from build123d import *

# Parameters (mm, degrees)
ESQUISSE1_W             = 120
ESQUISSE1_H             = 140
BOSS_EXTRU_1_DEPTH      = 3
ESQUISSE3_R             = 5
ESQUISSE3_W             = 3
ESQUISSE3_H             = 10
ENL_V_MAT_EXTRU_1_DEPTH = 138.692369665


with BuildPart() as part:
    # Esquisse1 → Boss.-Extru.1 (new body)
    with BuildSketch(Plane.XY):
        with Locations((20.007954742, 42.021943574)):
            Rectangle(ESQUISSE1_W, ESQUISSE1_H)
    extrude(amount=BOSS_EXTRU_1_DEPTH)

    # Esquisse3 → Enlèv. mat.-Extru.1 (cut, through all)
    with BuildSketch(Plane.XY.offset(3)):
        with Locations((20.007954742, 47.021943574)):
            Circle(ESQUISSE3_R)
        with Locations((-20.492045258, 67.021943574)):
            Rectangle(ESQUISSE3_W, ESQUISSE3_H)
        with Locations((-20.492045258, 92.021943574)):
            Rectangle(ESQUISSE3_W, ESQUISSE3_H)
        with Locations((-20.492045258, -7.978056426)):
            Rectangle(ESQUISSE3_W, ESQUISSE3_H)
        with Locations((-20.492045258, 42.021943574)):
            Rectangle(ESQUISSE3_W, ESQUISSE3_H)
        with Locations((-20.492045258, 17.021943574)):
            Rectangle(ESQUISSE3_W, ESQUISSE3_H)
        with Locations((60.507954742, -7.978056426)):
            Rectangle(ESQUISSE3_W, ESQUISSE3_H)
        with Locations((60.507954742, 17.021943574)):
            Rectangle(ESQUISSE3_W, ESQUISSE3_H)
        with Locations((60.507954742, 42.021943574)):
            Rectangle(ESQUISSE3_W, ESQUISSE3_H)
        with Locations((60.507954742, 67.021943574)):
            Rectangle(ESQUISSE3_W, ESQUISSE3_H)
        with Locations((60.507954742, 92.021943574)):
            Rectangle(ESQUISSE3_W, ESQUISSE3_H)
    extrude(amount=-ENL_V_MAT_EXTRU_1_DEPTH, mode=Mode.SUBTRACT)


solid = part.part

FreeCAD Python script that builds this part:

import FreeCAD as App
import Part
import Sketcher
Q = App.Units.Quantity

doc = App.newDocument("Part")
body = doc.addObject("PartDesign::Body", "Body")

sketch1 = doc.addObject("Sketcher::SketchObject", "Sketch")
body.addObject(sketch1)
sketch1.AttachmentSupport = (doc.XY_Plane, [""])
sketch1.MapMode = "FlatFace"
sketch1.addGeometry([
    Part.LineSegment(App.Vector(-40, 112, 0), App.Vector(-40, -28, 0)),
    Part.LineSegment(App.Vector(-40, -28, 0), App.Vector(80, -28, 0)),
    Part.LineSegment(App.Vector(80, -28, 0), App.Vector(80, 112, 0)),
    Part.LineSegment(App.Vector(80, 112, 0), App.Vector(-40, 112, 0)),
], False)
sketch1.addConstraint([
    Sketcher.Constraint("Coincident", 0, 2, 1, 1),
    Sketcher.Constraint("Coincident", 1, 2, 2, 1),
    Sketcher.Constraint("Coincident", 2, 2, 3, 1),
    Sketcher.Constraint("Coincident", 3, 2, 0, 1),
    Sketcher.Constraint("Vertical", 0),
    Sketcher.Constraint("Horizontal", 1),
    Sketcher.Constraint("Vertical", 2),
    Sketcher.Constraint("Horizontal", 3),
    Sketcher.Constraint("DistanceX", 1, 1, 1, 2, Q("120 mm")),
    Sketcher.Constraint("DistanceY", 0, 2, 0, 1, Q("140 mm")),
    Sketcher.Constraint("DistanceX", 0, 2, -1, 1, Q("39.992045 mm")),
    Sketcher.Constraint("DistanceY", 0, 2, -1, 1, Q("27.978056 mm")),
])
pad1 = doc.addObject("PartDesign::Pad", "Pad")
body.addObject(pad1)
pad1.Profile = sketch1
pad1.Length = 3

sketch2 = doc.addObject("Sketcher::SketchObject", "Sketch001")
body.addObject(sketch2)
sketch2.AttachmentSupport = (doc.XY_Plane, [""])
sketch2.MapMode = "FlatFace"
sketch2.AttachmentOffset = App.Placement(App.Vector(0, 0, 3), App.Rotation())
sketch2.addGeometry([
    Part.Circle(App.Vector(20, 47, 0), App.Vector(0, 0, 1), 5),
    Part.LineSegment(App.Vector(-22, 72, 0), App.Vector(-22, 62, 0)),
    Part.LineSegment(App.Vector(-22, 62, 0), App.Vector(-19, 62, 0)),
    Part.LineSegment(App.Vector(-19, 62, 0), App.Vector(-19, 72, 0)),
    Part.LineSegment(App.Vector(-19, 72, 0), App.Vector(-22, 72, 0)),
    Part.LineSegment(App.Vector(-22, 97, 0), App.Vector(-22, 87, 0)),
    Part.LineSegment(App.Vector(-22, 87, 0), App.Vector(-19, 87, 0)),
    Part.LineSegment(App.Vector(-19, 87, 0), App.Vector(-19, 97, 0)),
    Part.LineSegment(App.Vector(-19, 97, 0), App.Vector(-22, 97, 0)),
    Part.LineSegment(App.Vector(-22, -3, 0), App.Vector(-22, -13, 0)),
    Part.LineSegment(App.Vector(-22, -13, 0), App.Vector(-19, -13, 0)),
    Part.LineSegment(App.Vector(-19, -13, 0), App.Vector(-19, -3, 0)),
    Part.LineSegment(App.Vector(-19, -3, 0), App.Vector(-22, -3, 0)),
    Part.LineSegment(App.Vector(-22, 47, 0), App.Vector(-22, 37, 0)),
    Part.LineSegment(App.Vector(-22, 37, 0), App.Vector(-19, 37, 0)),
    Part.LineSegment(App.Vector(-19, 37, 0), App.Vector(-19, 47, 0)),
    Part.LineSegment(App.Vector(-19, 47, 0), App.Vector(-22, 47, 0)),
    Part.LineSegment(App.Vector(-22, 22, 0), App.Vector(-22, 12, 0)),
    Part.LineSegment(App.Vector(-22, 12, 0), App.Vector(-19, 12, 0)),
    Part.LineSegment(App.Vector(-19, 12, 0), App.Vector(-19, 22, 0)),
    Part.LineSegment(App.Vector(-19, 22, 0), App.Vector(-22, 22, 0)),
    Part.LineSegment(App.Vector(59, -3, 0), App.Vector(59, -13, 0)),
    Part.LineSegment(App.Vector(59, -13, 0), App.Vector(62, -13, 0)),
    Part.LineSegment(App.Vector(62, -13, 0), App.Vector(62, -3, 0)),
    Part.LineSegment(App.Vector(62, -3, 0), App.Vector(59, -3, 0)),
    Part.LineSegment(App.Vector(59, 22, 0), App.Vector(59, 12, 0)),
    Part.LineSegment(App.Vector(59, 12, 0), App.Vector(62, 12, 0)),
    Part.LineSegment(App.Vector(62, 12, 0), App.Vector(62, 22, 0)),
    Part.LineSegment(App.Vector(62, 22, 0), App.Vector(59, 22, 0)),
    Part.LineSegment(App.Vector(59, 47, 0), App.Vector(59, 37, 0)),
    Part.LineSegment(App.Vector(59, 37, 0), App.Vector(62, 37, 0)),
    Part.LineSegment(App.Vector(62, 37, 0), App.Vector(62, 47, 0)),
    Part.LineSegment(App.Vector(62, 47, 0), App.Vector(59, 47, 0)),
    Part.LineSegment(App.Vector(59, 72, 0), App.Vector(59, 62, 0)),
    Part.LineSegment(App.Vector(59, 62, 0), App.Vector(62, 62, 0)),
    Part.LineSegment(App.Vector(62, 62, 0), App.Vector(62, 72, 0)),
    Part.LineSegment(App.Vector(62, 72, 0), App.Vector(59, 72, 0)),
    Part.LineSegment(App.Vector(59, 97, 0), App.Vector(59, 87, 0)),
    Part.LineSegment(App.Vector(59, 87, 0), App.Vector(62, 87, 0)),
    Part.LineSegment(App.Vector(62, 87, 0), App.Vector(62, 97, 0)),
    Part.LineSegment(App.Vector(62, 97, 0), App.Vector(59, 97, 0)),
], False)
sketch2.addConstraint([
    Sketcher.Constraint("Coincident", 1, 2, 2, 1),
    Sketcher.Constraint("Coincident", 2, 2, 3, 1),
    Sketcher.Constraint("Coincident", 3, 2, 4, 1),
    Sketcher.Constraint("Coincident", 4, 2, 1, 1),
    Sketcher.Constraint("Coincident", 5, 2, 6, 1),
    Sketcher.Constraint("Coincident", 6, 2, 7, 1),
    Sketcher.Constraint("Coincident", 7, 2, 8, 1),
    Sketcher.Constraint("Coincident", 8, 2, 5, 1),
    Sketcher.Constraint("Coincident", 9, 2, 10, 1),
    Sketcher.Constraint("Coincident", 10, 2, 11, 1),
    Sketcher.Constraint("Coincident", 11, 2, 12, 1),
    Sketcher.Constraint("Coincident", 12, 2, 9, 1),
    Sketcher.Constraint("Coincident", 13, 2, 14, 1),
    Sketcher.Constraint("Coincident", 14, 2, 15, 1),
    Sketcher.Constraint("Coincident", 15, 2, 16, 1),
    Sketcher.Constraint("Coincident", 16, 2, 13, 1),
    Sketcher.Constraint("Coincident", 17, 2, 18, 1),
    Sketcher.Constraint("Coincident", 18, 2, 19, 1),
    Sketcher.Constraint("Coincident", 19, 2, 20, 1),
    Sketcher.Constraint("Coincident", 20, 2, 17, 1),
    Sketcher.Constraint("Coincident", 21, 2, 22, 1),
    Sketcher.Constraint("Coincident", 22, 2, 23, 1),
    Sketcher.Constraint("Coincident", 23, 2, 24, 1),
    Sketcher.Constraint("Coincident", 24, 2, 21, 1),
    Sketcher.Constraint("Coincident", 25, 2, 26, 1),
    Sketcher.Constraint("Coincident", 26, 2, 27, 1),
    Sketcher.Constraint("Coincident", 27, 2, 28, 1),
    Sketcher.Constraint("Coincident", 28, 2, 25, 1),
    Sketcher.Constraint("Coincident", 29, 2, 30, 1),
    Sketcher.Constraint("Coincident", 30, 2, 31, 1),
    Sketcher.Constraint("Coincident", 31, 2, 32, 1),
    Sketcher.Constraint("Coincident", 32, 2, 29, 1),
    Sketcher.Constraint("Coincident", 33, 2, 34, 1),
    Sketcher.Constraint("Coincident", 34, 2, 35, 1),
    Sketcher.Constraint("Coincident", 35, 2, 36, 1),
    Sketcher.Constraint("Coincident", 36, 2, 33, 1),
    Sketcher.Constraint("Coincident", 37, 2, 38, 1),
    Sketcher.Constraint("Coincident", 38, 2, 39, 1),
    Sketcher.Constraint("Coincident", 39, 2, 40, 1),
    Sketcher.Constraint("Coincident", 40, 2, 37, 1),
    Sketcher.Constraint("Vertical", 1),
    Sketcher.Constraint("Horizontal", 2),
    Sketcher.Constraint("Vertical", 3),
    Sketcher.Constraint("Horizontal", 4),
    Sketcher.Constraint("Vertical", 5),
    Sketcher.Constraint("Horizontal", 6),
    Sketcher.Constraint("Vertical", 7),
    Sketcher.Constraint("Horizontal", 8),
    Sketcher.Constraint("Vertical", 9),
    Sketcher.Constraint("Horizontal", 10),
    Sketcher.Constraint("Vertical", 11),
    Sketcher.Constraint("Horizontal", 12),
    Sketcher.Constraint("Vertical", 13),
    Sketcher.Constraint("Horizontal", 14),
    Sketcher.Constraint("Vertical", 15),
    Sketcher.Constraint("Horizontal", 16),
    Sketcher.Constraint("Vertical", 17),
    Sketcher.Constraint("Horizontal", 18),
    Sketcher.Constraint("Vertical", 19),
    Sketcher.Constraint("Horizontal", 20),
    Sketcher.Constraint("Vertical", 21),
    Sketcher.Constraint("Horizontal", 22),
    Sketcher.Constraint("Vertical", 23),
    Sketcher.Constraint("Horizontal", 24),
    Sketcher.Constraint("Vertical", 25),
    Sketcher.Constraint("Horizontal", 26),
    Sketcher.Constraint("Vertical", 27),
    Sketcher.Constraint("Horizontal", 28),
    Sketcher.Constraint("Vertical", 29),
    Sketcher.Constraint("Horizontal", 30),
    Sketcher.Constraint("Vertical", 31),
    Sketcher.Constraint("Horizontal", 32),
    Sketcher.Constraint("Vertical", 33),
    Sketcher.Constraint("Horizontal", 34),
    Sketcher.Constraint("Vertical", 35),
    Sketcher.Constraint("Horizontal", 36),
    Sketcher.Constraint("Vertical", 37),
    Sketcher.Constraint("Horizontal", 38),
    Sketcher.Constraint("Vertical", 39),
    Sketcher.Constraint("Horizontal", 40),
    Sketcher.Constraint("Horizontal", 0, 3, 15, 2),
    Sketcher.Constraint("Horizontal", 10, 2, 21, 2),
    Sketcher.Constraint("Horizontal", 12, 2, 23, 2),
    Sketcher.Constraint("Horizontal", 18, 2, 25, 2),
    Sketcher.Constraint("Horizontal", 20, 2, 27, 2),
    Sketcher.Constraint("Horizontal", 14, 2, 29, 2),
    Sketcher.Constraint("Horizontal", 16, 2, 31, 2),
    Sketcher.Constraint("Horizontal", 2, 2, 33, 2),
    Sketcher.Constraint("Horizontal", 4, 2, 35, 2),
    Sketcher.Constraint("Horizontal", 6, 2, 37, 2),
    Sketcher.Constraint("Horizontal", 8, 2, 39, 2),
    Sketcher.Constraint("Vertical", 4, 2, 5, 2),
    Sketcher.Constraint("Vertical", 3, 2, 6, 2),
    Sketcher.Constraint("Vertical", 8, 2, 9, 2),
    Sketcher.Constraint("Vertical", 7, 2, 10, 2),
    Sketcher.Constraint("Vertical", 12, 2, 13, 2),
    Sketcher.Constraint("Vertical", 11, 2, 14, 2),
    Sketcher.Constraint("Vertical", 16, 2, 17, 2),
    Sketcher.Constraint("Vertical", 15, 2, 18, 2),
    Sketcher.Constraint("Vertical", 24, 2, 25, 2),
    Sketcher.Constraint("Vertical", 23, 2, 26, 2),
    Sketcher.Constraint("Vertical", 28, 2, 29, 2),
    Sketcher.Constraint("Vertical", 27, 2, 30, 2),
    Sketcher.Constraint("Vertical", 32, 2, 33, 2),
    Sketcher.Constraint("Vertical", 31, 2, 34, 2),
    Sketcher.Constraint("Vertical", 36, 2, 37, 2),
    Sketcher.Constraint("Vertical", 35, 2, 38, 2),
    Sketcher.Constraint("Equal", 20, 22),
    Sketcher.Constraint("Equal", 3, 5),
    Sketcher.Constraint("Equal", 7, 9),
    Sketcher.Constraint("Equal", 11, 13),
    Sketcher.Constraint("Equal", 15, 17),
    Sketcher.Constraint("Diameter", 0, Q("10 mm")),
    Sketcher.Constraint("DistanceX", 2, 1, 2, 2, Q("3 mm")),
    Sketcher.Constraint("DistanceY", 1, 2, 1, 1, Q("10 mm")),
    Sketcher.Constraint("DistanceX", 1, 2, 0, 3, Q("42 mm")),
    Sketcher.Constraint("DistanceY", 0, 3, 1, 2, Q("15 mm")),
    Sketcher.Constraint("DistanceY", 4, 2, 5, 2, Q("15 mm")),
    Sketcher.Constraint("DistanceY", 9, 2, 0, 3, Q("60 mm")),
    Sketcher.Constraint("DistanceY", 12, 2, 17, 2, Q("15 mm")),
    Sketcher.Constraint("DistanceX", 0, 3, 21, 2, Q("39 mm")),
    Sketcher.Constraint("DistanceX", -1, 1, 0, 3, Q("20.007955 mm")),
    Sketcher.Constraint("DistanceY", -1, 1, 0, 3, Q("47.021944 mm")),
])
pocket1 = doc.addObject("PartDesign::Pocket", "Pocket")
body.addObject(pocket1)
pocket1.Profile = sketch2
pocket1.Type = "ThroughAll"

doc.recompute()
